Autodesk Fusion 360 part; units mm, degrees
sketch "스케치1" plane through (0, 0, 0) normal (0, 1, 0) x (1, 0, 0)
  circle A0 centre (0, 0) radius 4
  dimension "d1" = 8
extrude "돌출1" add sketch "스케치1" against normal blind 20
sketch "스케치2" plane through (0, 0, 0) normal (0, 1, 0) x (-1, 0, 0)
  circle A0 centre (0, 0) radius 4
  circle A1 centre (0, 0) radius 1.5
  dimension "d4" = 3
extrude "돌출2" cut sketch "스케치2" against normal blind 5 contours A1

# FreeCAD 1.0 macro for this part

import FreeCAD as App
import Part
import Sketcher
from FreeCAD import Vector

doc = App.newDocument("Part")
body = doc.addObject("PartDesign::Body", "Body")

# Sketch on XZ plane
sketch1 = body.newObject("Sketcher::SketchObject", "Sketch")
sketch1.AttachmentSupport = (doc.getObject("XZ_Plane"), [""])
sketch1.MapMode = "FlatFace"
sketch1.addGeometry(Part.Circle(Vector(0, 0, 0), Vector(0, 0, 1), 4), False)
sketch1.addConstraint([
    Sketcher.Constraint("Coincident", 0, 3, -1, 1),
    Sketcher.Constraint("Diameter", 0, 8.0),
])
pad1 = body.newObject("PartDesign::Pad", "Pad")
pad1.Profile = sketch1
pad1.Length = 20

# Sketch on XZ plane
sketch2 = body.newObject("Sketcher::SketchObject", "Sketch001")
sketch2.AttachmentSupport = (doc.getObject("XZ_Plane"), [""])
sketch2.MapMode = "FlatFace"
sketch2.addGeometry(Part.Circle(Vector(0, 0, 0), Vector(0, 0, 1), 1.5), False)
sketch2.addConstraint([
    Sketcher.Constraint("Coincident", 0, 3, -1, 1),
    Sketcher.Constraint("Diameter", 0, 3.0),
])
pocket1 = body.newObject("PartDesign::Pocket", "Pocket")
pocket1.Profile = sketch2
pocket1.Length = 5
pocket1.Reversed = True

doc.recompute()
